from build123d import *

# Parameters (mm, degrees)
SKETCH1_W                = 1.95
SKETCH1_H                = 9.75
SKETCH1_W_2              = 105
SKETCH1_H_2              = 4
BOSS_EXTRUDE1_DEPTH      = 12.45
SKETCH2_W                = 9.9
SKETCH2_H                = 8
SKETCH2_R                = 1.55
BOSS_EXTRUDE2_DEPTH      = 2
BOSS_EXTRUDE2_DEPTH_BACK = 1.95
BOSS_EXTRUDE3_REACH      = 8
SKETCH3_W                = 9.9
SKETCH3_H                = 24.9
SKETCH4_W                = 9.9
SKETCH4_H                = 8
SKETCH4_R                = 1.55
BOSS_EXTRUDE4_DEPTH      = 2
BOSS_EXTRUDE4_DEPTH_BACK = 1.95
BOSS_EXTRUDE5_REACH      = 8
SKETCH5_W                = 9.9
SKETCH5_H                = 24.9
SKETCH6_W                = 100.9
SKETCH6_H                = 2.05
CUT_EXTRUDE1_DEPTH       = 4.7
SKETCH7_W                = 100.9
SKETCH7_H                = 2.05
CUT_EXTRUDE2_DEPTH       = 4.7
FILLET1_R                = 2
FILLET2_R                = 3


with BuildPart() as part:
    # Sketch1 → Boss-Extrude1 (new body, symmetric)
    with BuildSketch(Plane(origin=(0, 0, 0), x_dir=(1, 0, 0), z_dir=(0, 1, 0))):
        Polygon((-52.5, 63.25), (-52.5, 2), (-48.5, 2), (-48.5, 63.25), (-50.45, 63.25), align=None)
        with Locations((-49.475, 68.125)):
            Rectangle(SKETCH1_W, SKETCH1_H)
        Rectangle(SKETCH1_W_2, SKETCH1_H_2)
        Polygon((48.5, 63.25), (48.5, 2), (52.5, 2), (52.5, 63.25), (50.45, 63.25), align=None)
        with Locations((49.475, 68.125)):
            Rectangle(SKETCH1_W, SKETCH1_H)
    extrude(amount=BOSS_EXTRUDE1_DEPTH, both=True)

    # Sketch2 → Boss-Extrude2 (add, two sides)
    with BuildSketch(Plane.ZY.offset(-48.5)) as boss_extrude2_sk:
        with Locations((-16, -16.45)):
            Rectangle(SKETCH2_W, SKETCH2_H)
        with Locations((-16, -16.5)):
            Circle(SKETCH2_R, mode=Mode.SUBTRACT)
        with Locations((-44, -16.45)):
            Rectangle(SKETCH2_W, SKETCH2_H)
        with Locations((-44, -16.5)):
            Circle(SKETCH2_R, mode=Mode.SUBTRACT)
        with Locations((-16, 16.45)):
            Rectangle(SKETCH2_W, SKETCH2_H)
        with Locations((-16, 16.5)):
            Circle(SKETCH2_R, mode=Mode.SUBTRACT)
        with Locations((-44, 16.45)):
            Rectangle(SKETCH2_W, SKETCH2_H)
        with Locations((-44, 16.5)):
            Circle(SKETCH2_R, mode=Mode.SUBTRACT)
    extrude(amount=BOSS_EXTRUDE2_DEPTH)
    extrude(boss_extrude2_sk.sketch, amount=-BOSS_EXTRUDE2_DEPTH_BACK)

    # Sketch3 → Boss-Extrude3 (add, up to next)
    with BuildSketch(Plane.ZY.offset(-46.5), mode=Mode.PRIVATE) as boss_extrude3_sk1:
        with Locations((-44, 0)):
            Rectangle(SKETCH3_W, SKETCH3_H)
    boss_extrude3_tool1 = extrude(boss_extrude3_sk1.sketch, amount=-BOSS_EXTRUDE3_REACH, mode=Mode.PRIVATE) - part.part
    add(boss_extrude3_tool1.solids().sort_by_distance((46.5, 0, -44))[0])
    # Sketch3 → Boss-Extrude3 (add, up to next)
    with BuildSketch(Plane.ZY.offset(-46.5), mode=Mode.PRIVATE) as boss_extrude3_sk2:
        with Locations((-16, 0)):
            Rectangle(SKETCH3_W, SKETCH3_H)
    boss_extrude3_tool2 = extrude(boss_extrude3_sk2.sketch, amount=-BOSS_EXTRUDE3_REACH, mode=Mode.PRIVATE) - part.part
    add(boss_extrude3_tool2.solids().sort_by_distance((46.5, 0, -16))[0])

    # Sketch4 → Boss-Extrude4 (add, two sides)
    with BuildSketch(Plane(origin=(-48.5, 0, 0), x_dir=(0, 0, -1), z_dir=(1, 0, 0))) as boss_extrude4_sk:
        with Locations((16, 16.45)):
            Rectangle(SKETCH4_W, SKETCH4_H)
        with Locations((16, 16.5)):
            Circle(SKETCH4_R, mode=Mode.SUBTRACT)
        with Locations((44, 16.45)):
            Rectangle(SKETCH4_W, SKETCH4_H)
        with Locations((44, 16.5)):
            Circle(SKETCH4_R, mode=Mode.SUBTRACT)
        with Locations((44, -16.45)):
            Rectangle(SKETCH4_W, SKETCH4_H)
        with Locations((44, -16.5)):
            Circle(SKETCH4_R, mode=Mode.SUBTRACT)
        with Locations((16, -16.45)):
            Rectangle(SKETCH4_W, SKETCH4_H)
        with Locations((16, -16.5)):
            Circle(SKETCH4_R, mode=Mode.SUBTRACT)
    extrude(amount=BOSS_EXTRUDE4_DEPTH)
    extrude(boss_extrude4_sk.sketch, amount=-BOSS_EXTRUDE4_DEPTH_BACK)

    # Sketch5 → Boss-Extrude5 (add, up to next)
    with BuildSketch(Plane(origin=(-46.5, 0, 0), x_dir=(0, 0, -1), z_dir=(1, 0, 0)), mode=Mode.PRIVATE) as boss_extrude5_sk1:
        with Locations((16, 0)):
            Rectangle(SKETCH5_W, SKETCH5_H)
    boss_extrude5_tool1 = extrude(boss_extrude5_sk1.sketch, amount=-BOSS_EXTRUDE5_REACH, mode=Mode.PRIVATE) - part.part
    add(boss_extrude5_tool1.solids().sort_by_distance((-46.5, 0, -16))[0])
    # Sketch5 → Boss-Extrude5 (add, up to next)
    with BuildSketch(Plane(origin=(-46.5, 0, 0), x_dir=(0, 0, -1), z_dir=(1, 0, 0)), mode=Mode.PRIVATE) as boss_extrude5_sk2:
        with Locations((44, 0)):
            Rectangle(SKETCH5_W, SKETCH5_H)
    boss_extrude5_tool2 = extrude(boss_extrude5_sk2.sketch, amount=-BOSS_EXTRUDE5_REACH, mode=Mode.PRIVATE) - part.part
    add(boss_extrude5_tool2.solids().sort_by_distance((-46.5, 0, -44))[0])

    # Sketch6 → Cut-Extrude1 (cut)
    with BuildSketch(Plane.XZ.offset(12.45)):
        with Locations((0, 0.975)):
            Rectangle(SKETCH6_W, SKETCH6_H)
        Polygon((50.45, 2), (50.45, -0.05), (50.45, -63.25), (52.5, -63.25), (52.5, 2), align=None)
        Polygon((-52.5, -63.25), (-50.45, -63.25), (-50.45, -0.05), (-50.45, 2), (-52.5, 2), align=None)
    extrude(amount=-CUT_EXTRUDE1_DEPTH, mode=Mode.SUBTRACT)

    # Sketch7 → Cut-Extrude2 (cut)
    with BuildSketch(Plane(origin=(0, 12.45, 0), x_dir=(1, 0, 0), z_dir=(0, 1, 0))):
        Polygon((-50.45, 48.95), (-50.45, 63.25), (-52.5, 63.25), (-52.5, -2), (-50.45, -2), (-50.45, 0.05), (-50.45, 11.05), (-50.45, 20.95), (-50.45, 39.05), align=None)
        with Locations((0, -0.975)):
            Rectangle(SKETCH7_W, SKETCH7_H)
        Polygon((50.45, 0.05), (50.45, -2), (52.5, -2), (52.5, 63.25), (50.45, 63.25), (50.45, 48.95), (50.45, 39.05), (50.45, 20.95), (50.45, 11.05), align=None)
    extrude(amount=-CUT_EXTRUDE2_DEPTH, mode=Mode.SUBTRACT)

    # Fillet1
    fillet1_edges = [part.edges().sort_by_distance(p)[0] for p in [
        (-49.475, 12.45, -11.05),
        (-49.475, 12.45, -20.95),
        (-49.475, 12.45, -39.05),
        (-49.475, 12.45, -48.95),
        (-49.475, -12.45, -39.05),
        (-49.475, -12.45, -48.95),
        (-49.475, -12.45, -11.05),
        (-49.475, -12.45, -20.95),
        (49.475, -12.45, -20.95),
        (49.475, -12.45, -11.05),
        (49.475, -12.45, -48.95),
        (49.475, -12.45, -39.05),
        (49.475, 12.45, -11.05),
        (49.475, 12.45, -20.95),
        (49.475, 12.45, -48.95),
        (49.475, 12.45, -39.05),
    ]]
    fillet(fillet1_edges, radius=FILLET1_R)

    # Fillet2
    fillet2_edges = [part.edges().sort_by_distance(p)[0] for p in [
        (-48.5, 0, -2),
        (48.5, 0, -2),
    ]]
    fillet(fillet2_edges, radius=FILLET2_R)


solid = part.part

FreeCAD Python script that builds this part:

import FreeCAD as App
import Part
import Sketcher

V = App.Vector
Q = App.Units.Quantity


def edges_at(feature, points):
    """Names of the edges that pass closest to the given points."""
    edges = feature.Shape.Edges
    near = lambda p: min(range(len(edges)), key=lambda i: edges[i].distToShape(Part.Vertex(*p))[0])
    return sorted({f"Edge{near(p) + 1}" for p in points})


def add_polygon(sketch, points):
    """Adds a closed chain of lines whose ends are joined by coincident constraints."""
    first, n = sketch.GeometryCount, len(points)
    for a, b in zip(points, points[1:] + points[:1]):
        sketch.addGeometry(Part.LineSegment(App.Vector(*a, 0), App.Vector(*b, 0)), False)
    for i in range(n):
        sketch.addConstraint(Sketcher.Constraint("Coincident", first + i, 2, first + (i + 1) % n, 1))

doc = App.newDocument("Part")
body = doc.addObject("PartDesign::Body", "Body")

# Sketch on XZ plane
sketch1 = body.newObject("Sketcher::SketchObject", "Sketch")
sketch1.AttachmentSupport = (doc.getObject("XZ_Plane"), [""])
sketch1.MapMode = "FlatFace"
add_polygon(sketch1, [(-52.5, -63.2), (-52.5, 2), (52.5, 2), (52.5, -63.2), (50.5, -63.2), (50.5, -73), (48.5, -73), (48.5, -2), (-48.5, -2), (-48.5, -73), (-50.5, -73), (-50.5, -63.2)])  # lines 0-11
sketch1.addConstraint([
    Sketcher.Constraint("Vertical", 0),
    Sketcher.Constraint("Horizontal", 1),
    Sketcher.Constraint("Vertical", 2),
    Sketcher.Constraint("Horizontal", 3),
    Sketcher.Constraint("Vertical", 4),
    Sketcher.Constraint("Horizontal", 5),
    Sketcher.Constraint("Vertical", 6),
    Sketcher.Constraint("Horizontal", 7),
    Sketcher.Constraint("Vertical", 8),
    Sketcher.Constraint("Horizontal", 9),
    Sketcher.Constraint("Vertical", 10),
    Sketcher.Constraint("Horizontal", 11),
    Sketcher.Constraint("Symmetric", 5, 2, 8, 2, -2),
    Sketcher.Constraint("Symmetric", 3, 2, 10, 2, -2),
    Sketcher.Constraint("Equal", 3, 11),
    Sketcher.Constraint("DistanceX", 1, 1, 1, 2, Q("105 mm")),
    Sketcher.Constraint("DistanceX", 7, 2, 7, 1, Q("97 mm")),
    Sketcher.Constraint("DistanceY", 6, 1, 6, 2, Q("71 mm")),
    Sketcher.Constraint("DistanceY", -1, 1, 0, 2, Q("2 mm")),
    Sketcher.Constraint("DistanceY", 4, 2, -1, 1, Q("73 mm")),
    Sketcher.Constraint("DistanceX", 3, 2, 3, 1, Q("2.05 mm")),
    Sketcher.Constraint("DistanceY", 0, 1, 0, 2, Q("65.25 mm")),
])
pad1 = body.newObject("PartDesign::Pad", "Pad")
pad1.Profile = sketch1
pad1.Length = 24.9
pad1.Midplane = True

# Sketch on YZ plane
sketch2 = body.newObject("Sketcher::SketchObject", "Sketch001")
sketch2.AttachmentSupport = (doc.getObject("YZ_Plane"), [""])
sketch2.MapMode = "FlatFace"
sketch2.AttachmentOffset = App.Placement(V(0, 0, 48.5), App.Rotation())
add_polygon(sketch2, [(-12.4, -20.9), (-20.4, -20.9), (-20.4, -11.1), (-12.4, -11.1)])  # lines 0-3
sketch2.addGeometry(Part.Circle(V(-16.5, -16, 0), V(0, 0, 1), 1.6), False)  # 4
add_polygon(sketch2, [(-12.4, -49), (-20.4, -49), (-20.4, -39), (-12.4, -39)])  # lines 5-8
sketch2.addGeometry(Part.Circle(V(-16.5, -44, 0), V(0, 0, 1), 1.6), False)  # 9
add_polygon(sketch2, [(20.4, -20.9), (12.4, -20.9), (12.4, -11.1), (20.4, -11.1)])  # lines 10-13
sketch2.addGeometry(Part.Circle(V(16.5, -16, 0), V(0, 0, 1), 1.6), False)  # 14
add_polygon(sketch2, [(20.4, -49), (12.4, -49), (12.4, -39), (20.4, -39)])  # lines 15-18
sketch2.addGeometry(Part.Circle(V(16.5, -44, 0), V(0, 0, 1), 1.6), False)  # 19
sketch2.addConstraint([
    Sketcher.Constraint("Horizontal", 0),
    Sketcher.Constraint("Vertical", 1),
    Sketcher.Constraint("Horizontal", 2),
    Sketcher.Constraint("Vertical", 3),
    Sketcher.Constraint("Horizontal", 5),
    Sketcher.Constraint("Vertical", 6),
    Sketcher.Constraint("Horizontal", 7),
    Sketcher.Constraint("Vertical", 8),
    Sketcher.Constraint("Horizontal", 10),
    Sketcher.Constraint("Vertical", 11),
    Sketcher.Constraint("Horizontal", 12),
    Sketcher.Constraint("Vertical", 13),
    Sketcher.Constraint("Horizontal", 15),
    Sketcher.Constraint("Vertical", 16),
    Sketcher.Constraint("Horizontal", 17),
    Sketcher.Constraint("Vertical", 18),
    Sketcher.Constraint("Equal", 4, 9),
    Sketcher.Constraint("Equal", 9, 14),
    Sketcher.Constraint("Equal", 14, 19),
    Sketcher.Constraint("Symmetric", 4, 3, 14, 3, -2),
    Sketcher.Constraint("Symmetric", 9, 3, 19, 3, -2),
    Sketcher.Constraint("Symmetric", 3, 2, 10, 2, -2),
    Sketcher.Constraint("Symmetric", 1, 2, 12, 2, -2),
    Sketcher.Constraint("Symmetric", 8, 2, 15, 2, -2),
    Sketcher.Constraint("Symmetric", 6, 2, 17, 2, -2),
    Sketcher.Constraint("Vertical", 4, 3, 9, 3),
    Sketcher.Constraint("Vertical", 1, 2, 5, 2),
    Sketcher.Constraint("Vertical", 3, 2, 7, 2),
    Sketcher.Constraint("Equal", 3, 6),
    Sketcher.Constraint("Diameter", 4, Q("3.1 mm")),
    Sketcher.Constraint("DistanceX", 0, 2, 0, 1, Q("8 mm")),
    Sketcher.Constraint("DistanceY", 1, 1, 1, 2, Q("9.9 mm")),
    Sketcher.Constraint("DistanceY", 4, 3, -1, 1, Q("16 mm")),
    Sketcher.Constraint("DistanceY", 9, 3, -1, 1, Q("44 mm")),
    Sketcher.Constraint("DistanceX", 4, 3, 14, 3, Q("33 mm")),
    Sketcher.Constraint("DistanceY", 5, 2, 0, 2, Q("28 mm")),
    Sketcher.Constraint("DistanceX", 3, 2, 10, 2, Q("24.9 mm")),
    Sketcher.Constraint("DistanceY", 0, 2, -1, 1, Q("20.95 mm")),
])
pad2 = body.newObject("PartDesign::Pad", "Pad001")
pad2.Profile = sketch2
pad2.Type = "TwoLengths"
pad2.Length = 2
pad2.Length2 = 1.95
pad2.Reversed = True

# Sketch on YZ plane
sketch3 = body.newObject("Sketcher::SketchObject", "Sketch002")
sketch3.AttachmentSupport = (doc.getObject("YZ_Plane"), [""])
sketch3.MapMode = "FlatFace"
sketch3.AttachmentOffset = App.Placement(V(0, 0, 46.5), App.Rotation())
add_polygon(sketch3, [(12, -49), (-12, -49), (-12, -39), (12, -39)])  # lines 0-3
sketch3.addConstraint([
    Sketcher.Constraint("Horizontal", 0),
    Sketcher.Constraint("Vertical", 1),
    Sketcher.Constraint("Horizontal", 2),
    Sketcher.Constraint("Vertical", 3),
    Sketcher.Constraint("DistanceX", 0, 2, 0, 1, Q("24.9 mm")),
    Sketcher.Constraint("DistanceY", 1, 1, 1, 2, Q("9.9 mm")),
    Sketcher.Constraint("DistanceX", 0, 2, -1, 1, Q("12.45 mm")),
    Sketcher.Constraint("DistanceY", 0, 2, -1, 1, Q("48.95 mm")),
])
pad3 = body.newObject("PartDesign::Pad", "Pad002")
pad3.Profile = sketch3
pad3.Type = "UpToFirst"

# Sketch on YZ plane
sketch4 = body.newObject("Sketcher::SketchObject", "Sketch003")
sketch4.AttachmentSupport = (doc.getObject("YZ_Plane"), [""])
sketch4.MapMode = "FlatFace"
sketch4.AttachmentOffset = App.Placement(V(0, 0, 46.5), App.Rotation())
add_polygon(sketch4, [(12, -21), (-12, -21), (-12, -11), (12, -11)])  # lines 0-3
sketch4.addConstraint([
    Sketcher.Constraint("Horizontal", 0),
    Sketcher.Constraint("Vertical", 1),
    Sketcher.Constraint("Horizontal", 2),
    Sketcher.Constraint("Vertical", 3),
    Sketcher.Constraint("DistanceX", 0, 2, 0, 1, Q("24.9 mm")),
    Sketcher.Constraint("DistanceY", 1, 1, 1, 2, Q("9.9 mm")),
    Sketcher.Constraint("DistanceX", 0, 2, -1, 1, Q("12.45 mm")),
    Sketcher.Constraint("DistanceY", 0, 2, -1, 1, Q("20.95 mm")),
])
pad4 = body.newObject("PartDesign::Pad", "Pad003")
pad4.Profile = sketch4
pad4.Type = "UpToFirst"

# Sketch on YZ plane
sketch5 = body.newObject("Sketcher::SketchObject", "Sketch004")
sketch5.AttachmentSupport = (doc.getObject("YZ_Plane"), [""])
sketch5.MapMode = "FlatFace"
sketch5.AttachmentOffset = App.Placement(V(0, 0, -48.5), App.Rotation())
add_polygon(sketch5, [(20.4, -11.1), (12.4, -11.1), (12.4, -20.9), (20.4, -20.9)])  # lines 0-3
sketch5.addGeometry(Part.Circle(V(16.5, -16, 0), V(0, 0, 1), 1.6), False)  # 4
add_polygon(sketch5, [(20.4, -39), (12.4, -39), (12.4, -49), (20.4, -49)])  # lines 5-8
sketch5.addGeometry(Part.Circle(V(16.5, -44, 0), V(0, 0, 1), 1.6), False)  # 9
add_polygon(sketch5, [(-12.4, -39), (-20.4, -39), (-20.4, -49), (-12.4, -49)])  # lines 10-13
sketch5.addGeometry(Part.Circle(V(-16.5, -44, 0), V(0, 0, 1), 1.6), False)  # 14
add_polygon(sketch5, [(-12.4, -11.1), (-20.4, -11.1), (-20.4, -20.9), (-12.4, -20.9)])  # lines 15-18
sketch5.addGeometry(Part.Circle(V(-16.5, -16, 0), V(0, 0, 1), 1.6), False)  # 19
sketch5.addConstraint([
    Sketcher.Constraint("Horizontal", 0),
    Sketcher.Constraint("Vertical", 1),
    Sketcher.Constraint("Horizontal", 2),
    Sketcher.Constraint("Vertical", 3),
    Sketcher.Constraint("Horizontal", 5),
    Sketcher.Constraint("Vertical", 6),
    Sketcher.Constraint("Horizontal", 7),
    Sketcher.Constraint("Vertical", 8),
    Sketcher.Constraint("Horizontal", 10),
    Sketcher.Constraint("Vertical", 11),
    Sketcher.Constraint("Horizontal", 12),
    Sketcher.Constraint("Vertical", 13),
    Sketcher.Constraint("Horizontal", 15),
    Sketcher.Constraint("Vertical", 16),
    Sketcher.Constraint("Horizontal", 17),
    Sketcher.Constraint("Vertical", 18),
    Sketcher.Constraint("Equal", 4, 9),
    Sketcher.Constraint("Equal", 9, 14),
    Sketcher.Constraint("Equal", 14, 19),
    Sketcher.Constraint("Symmetric", 9, 3, 14, 3, -2),
    Sketcher.Constraint("Symmetric", 4, 3, 19, 3, -2),
    Sketcher.Constraint("Symmetric", 8, 2, 10, 2, -2),
    Sketcher.Constraint("Symmetric", 6, 2, 12, 2, -2),
    Sketcher.Constraint("Symmetric", 3, 2, 15, 2, -2),
    Sketcher.Constraint("Symmetric", 1, 2, 17, 2, -2),
    Sketcher.Constraint("Vertical", 4, 3, 9, 3),
    Sketcher.Constraint("Vertical", 1, 2, 5, 2),
    Sketcher.Constraint("Vertical", 3, 2, 7, 2),
    Sketcher.Constraint("Equal", 3, 6),
    Sketcher.Constraint("Diameter", 4, Q("3.1 mm")),
    Sketcher.Constraint("DistanceX", 0, 2, 0, 1, Q("8 mm")),
    Sketcher.Constraint("DistanceY", 1, 2, 1, 1, Q("9.9 mm")),
    Sketcher.Constraint("DistanceY", 4, 3, -1, 1, Q("16 mm")),
    Sketcher.Constraint("DistanceY", 9, 3, -1, 1, Q("44 mm")),
    Sketcher.Constraint("DistanceX", 14, 3, 9, 3, Q("33 mm")),
    Sketcher.Constraint("DistanceY", 5, 2, 0, 2, Q("28 mm")),
    Sketcher.Constraint("DistanceX", 10, 2, 5, 2, Q("32.9 mm")),
    Sketcher.Constraint("DistanceY", 0, 2, -1, 1, Q("11.05 mm")),
])
pad5 = body.newObject("PartDesign::Pad", "Pad004")
pad5.Profile = sketch5
pad5.Type = "TwoLengths"
pad5.Length = 2
pad5.Length2 = 1.95

# Sketch on YZ plane
sketch6 = body.newObject("Sketcher::SketchObject", "Sketch005")
sketch6.AttachmentSupport = (doc.getObject("YZ_Plane"), [""])
sketch6.MapMode = "FlatFace"
sketch6.AttachmentOffset = App.Placement(V(0, 0, -46.5), App.Rotation())
add_polygon(sketch6, [(12, -11), (-12, -11), (-12, -21), (12, -21)])  # lines 0-3
sketch6.addConstraint([
    Sketcher.Constraint("Horizontal", 0),
    Sketcher.Constraint("Vertical", 1),
    Sketcher.Constraint("Horizontal", 2),
    Sketcher.Constraint("Vertical", 3),
    Sketcher.Constraint("DistanceX", 0, 2, 0, 1, Q("24.9 mm")),
    Sketcher.Constraint("DistanceY", 1, 2, 1, 1, Q("9.9 mm")),
    Sketcher.Constraint("DistanceX", 0, 2, -1, 1, Q("12.45 mm")),
    Sketcher.Constraint("DistanceY", 0, 2, -1, 1, Q("11.05 mm")),
])
pad6 = body.newObject("PartDesign::Pad", "Pad005")
pad6.Profile = sketch6
pad6.Type = "UpToFirst"
pad6.Reversed = True

# Sketch on YZ plane
sketch7 = body.newObject("Sketcher::SketchObject", "Sketch006")
sketch7.AttachmentSupport = (doc.getObject("YZ_Plane"), [""])
sketch7.MapMode = "FlatFace"
sketch7.AttachmentOffset = App.Placement(V(0, 0, -46.5), App.Rotation())
add_polygon(sketch7, [(12, -39), (-12, -39), (-12, -49), (12, -49)])  # lines 0-3
sketch7.addConstraint([
    Sketcher.Constraint("Horizontal", 0),
    Sketcher.Constraint("Vertical", 1),
    Sketcher.Constraint("Horizontal", 2),
    Sketcher.Constraint("Vertical", 3),
    Sketcher.Constraint("DistanceX", 0, 2, 0, 1, Q("24.9 mm")),
    Sketcher.Constraint("DistanceY", 1, 2, 1, 1, Q("9.9 mm")),
    Sketcher.Constraint("DistanceX", 0, 2, -1, 1, Q("12.45 mm")),
    Sketcher.Constraint("DistanceY", 0, 2, -1, 1, Q("39.05 mm")),
])
pad7 = body.newObject("PartDesign::Pad", "Pad006")
pad7.Profile = sketch7
pad7.Type = "UpToFirst"
pad7.Reversed = True

# Sketch on XZ plane
sketch8 = body.newObject("Sketcher::SketchObject", "Sketch007")
sketch8.AttachmentSupport = (doc.getObject("XZ_Plane"), [""])
sketch8.MapMode = "FlatFace"
sketch8.AttachmentOffset = App.Placement(V(0, 0, 12.45), App.Rotation())
add_polygon(sketch8, [(-50.5, -0.1), (50.5, -0.1), (50.5, -63.2), (52.5, -63.2), (52.5, 2), (-52.5, 2), (-52.5, -63.2), (-50.5, -63.2)])  # lines 0-7
sketch8.addConstraint([
    Sketcher.Constraint("Horizontal", 0),
    Sketcher.Constraint("Vertical", 1),
    Sketcher.Constraint("Horizontal", 2),
    Sketcher.Constraint("Vertical", 3),
    Sketcher.Constraint("Horizontal", 4),
    Sketcher.Constraint("Vertical", 5),
    Sketcher.Constraint("Horizontal", 6),
    Sketcher.Constraint("Vertical", 7),
    Sketcher.Constraint("Symmetric", 2, 2, 5, 2, -2),
    Sketcher.Constraint("Equal", 2, 6),
    Sketcher.Constraint("DistanceX", 4, 2, 4, 1, Q("105 mm")),
    Sketcher.Constraint("DistanceX", 0, 1, 0, 2, Q("100.9 mm")),
    Sketcher.Constraint("DistanceY", 1, 2, 1, 1, Q("63.2 mm")),
    Sketcher.Constraint("DistanceY", -1, 1, 3, 2, Q("2 mm")),
    Sketcher.Constraint("DistanceY", 3, 1, 3, 2, Q("65.25 mm")),
])
pocket1 = body.newObject("PartDesign::Pocket", "Pocket")
pocket1.Profile = sketch8
pocket1.Length = 4.7

# Sketch on XZ plane
sketch9 = body.newObject("Sketcher::SketchObject", "Sketch008")
sketch9.AttachmentSupport = (doc.getObject("XZ_Plane"), [""])
sketch9.MapMode = "FlatFace"
sketch9.AttachmentOffset = App.Placement(V(0, 0, -12.45), App.Rotation())
add_polygon(sketch9, [(-50.5, -63.2), (-52.5, -63.2), (-52.5, 2), (52.5, 2), (52.5, -63.2), (50.5, -63.2), (50.5, -0.1), (-50.5, -0.1)])  # lines 0-7
sketch9.addConstraint([
    Sketcher.Constraint("Horizontal", 0),
    Sketcher.Constraint("Vertical", 1),
    Sketcher.Constraint("Horizontal", 2),
    Sketcher.Constraint("Vertical", 3),
    Sketcher.Constraint("Horizontal", 4),
    Sketcher.Constraint("Vertical", 5),
    Sketcher.Constraint("Horizontal", 6),
    Sketcher.Constraint("Vertical", 7),
    Sketcher.Constraint("Symmetric", 0, 2, 3, 2, -2),
    Sketcher.Constraint("Equal", 0, 4),
    Sketcher.Constraint("DistanceX", 2, 1, 2, 2, Q("105 mm")),
    Sketcher.Constraint("DistanceX", 6, 2, 6, 1, Q("100.9 mm")),
    Sketcher.Constraint("DistanceY", 5, 1, 5, 2, Q("63.2 mm")),
    Sketcher.Constraint("DistanceY", -1, 1, 1, 2, Q("2 mm")),
    Sketcher.Constraint("DistanceY", 1, 1, 1, 2, Q("65.25 mm")),
])
pocket2 = body.newObject("PartDesign::Pocket", "Pocket001")
pocket2.Profile = sketch9
pocket2.Length = 4.7
pocket2.Reversed = True
doc.recompute()

fillet = body.newObject("PartDesign::Fillet", "Fillet")
fillet.Base = (pocket2, edges_at(pocket2, [
    (-49.475, 12.45, -11.05),
    (-49.475, 12.45, -20.95),
    (-49.475, 12.45, -39.05),
    (-49.475, 12.45, -48.95),
    (-49.475, -12.45, -39.05),
    (-49.475, -12.45, -48.95),
    (-49.475, -12.45, -11.05),
    (-49.475, -12.45, -20.95),
    (49.475, -12.45, -20.95),
    (49.475, -12.45, -11.05),
    (49.475, -12.45, -48.95),
    (49.475, -12.45, -39.05),
    (49.475, 12.45, -11.05),
    (49.475, 12.45, -20.95),
    (49.475, 12.45, -48.95),
    (49.475, 12.45, -39.05),
]))
fillet.Radius = 2
doc.recompute()

fillet2 = body.newObject("PartDesign::Fillet", "Fillet001")
fillet2.Base = (fillet, edges_at(fillet, [(-48.5, 0, -2), (48.5, 0, -2)]))
fillet2.Radius = 3

doc.recompute()
